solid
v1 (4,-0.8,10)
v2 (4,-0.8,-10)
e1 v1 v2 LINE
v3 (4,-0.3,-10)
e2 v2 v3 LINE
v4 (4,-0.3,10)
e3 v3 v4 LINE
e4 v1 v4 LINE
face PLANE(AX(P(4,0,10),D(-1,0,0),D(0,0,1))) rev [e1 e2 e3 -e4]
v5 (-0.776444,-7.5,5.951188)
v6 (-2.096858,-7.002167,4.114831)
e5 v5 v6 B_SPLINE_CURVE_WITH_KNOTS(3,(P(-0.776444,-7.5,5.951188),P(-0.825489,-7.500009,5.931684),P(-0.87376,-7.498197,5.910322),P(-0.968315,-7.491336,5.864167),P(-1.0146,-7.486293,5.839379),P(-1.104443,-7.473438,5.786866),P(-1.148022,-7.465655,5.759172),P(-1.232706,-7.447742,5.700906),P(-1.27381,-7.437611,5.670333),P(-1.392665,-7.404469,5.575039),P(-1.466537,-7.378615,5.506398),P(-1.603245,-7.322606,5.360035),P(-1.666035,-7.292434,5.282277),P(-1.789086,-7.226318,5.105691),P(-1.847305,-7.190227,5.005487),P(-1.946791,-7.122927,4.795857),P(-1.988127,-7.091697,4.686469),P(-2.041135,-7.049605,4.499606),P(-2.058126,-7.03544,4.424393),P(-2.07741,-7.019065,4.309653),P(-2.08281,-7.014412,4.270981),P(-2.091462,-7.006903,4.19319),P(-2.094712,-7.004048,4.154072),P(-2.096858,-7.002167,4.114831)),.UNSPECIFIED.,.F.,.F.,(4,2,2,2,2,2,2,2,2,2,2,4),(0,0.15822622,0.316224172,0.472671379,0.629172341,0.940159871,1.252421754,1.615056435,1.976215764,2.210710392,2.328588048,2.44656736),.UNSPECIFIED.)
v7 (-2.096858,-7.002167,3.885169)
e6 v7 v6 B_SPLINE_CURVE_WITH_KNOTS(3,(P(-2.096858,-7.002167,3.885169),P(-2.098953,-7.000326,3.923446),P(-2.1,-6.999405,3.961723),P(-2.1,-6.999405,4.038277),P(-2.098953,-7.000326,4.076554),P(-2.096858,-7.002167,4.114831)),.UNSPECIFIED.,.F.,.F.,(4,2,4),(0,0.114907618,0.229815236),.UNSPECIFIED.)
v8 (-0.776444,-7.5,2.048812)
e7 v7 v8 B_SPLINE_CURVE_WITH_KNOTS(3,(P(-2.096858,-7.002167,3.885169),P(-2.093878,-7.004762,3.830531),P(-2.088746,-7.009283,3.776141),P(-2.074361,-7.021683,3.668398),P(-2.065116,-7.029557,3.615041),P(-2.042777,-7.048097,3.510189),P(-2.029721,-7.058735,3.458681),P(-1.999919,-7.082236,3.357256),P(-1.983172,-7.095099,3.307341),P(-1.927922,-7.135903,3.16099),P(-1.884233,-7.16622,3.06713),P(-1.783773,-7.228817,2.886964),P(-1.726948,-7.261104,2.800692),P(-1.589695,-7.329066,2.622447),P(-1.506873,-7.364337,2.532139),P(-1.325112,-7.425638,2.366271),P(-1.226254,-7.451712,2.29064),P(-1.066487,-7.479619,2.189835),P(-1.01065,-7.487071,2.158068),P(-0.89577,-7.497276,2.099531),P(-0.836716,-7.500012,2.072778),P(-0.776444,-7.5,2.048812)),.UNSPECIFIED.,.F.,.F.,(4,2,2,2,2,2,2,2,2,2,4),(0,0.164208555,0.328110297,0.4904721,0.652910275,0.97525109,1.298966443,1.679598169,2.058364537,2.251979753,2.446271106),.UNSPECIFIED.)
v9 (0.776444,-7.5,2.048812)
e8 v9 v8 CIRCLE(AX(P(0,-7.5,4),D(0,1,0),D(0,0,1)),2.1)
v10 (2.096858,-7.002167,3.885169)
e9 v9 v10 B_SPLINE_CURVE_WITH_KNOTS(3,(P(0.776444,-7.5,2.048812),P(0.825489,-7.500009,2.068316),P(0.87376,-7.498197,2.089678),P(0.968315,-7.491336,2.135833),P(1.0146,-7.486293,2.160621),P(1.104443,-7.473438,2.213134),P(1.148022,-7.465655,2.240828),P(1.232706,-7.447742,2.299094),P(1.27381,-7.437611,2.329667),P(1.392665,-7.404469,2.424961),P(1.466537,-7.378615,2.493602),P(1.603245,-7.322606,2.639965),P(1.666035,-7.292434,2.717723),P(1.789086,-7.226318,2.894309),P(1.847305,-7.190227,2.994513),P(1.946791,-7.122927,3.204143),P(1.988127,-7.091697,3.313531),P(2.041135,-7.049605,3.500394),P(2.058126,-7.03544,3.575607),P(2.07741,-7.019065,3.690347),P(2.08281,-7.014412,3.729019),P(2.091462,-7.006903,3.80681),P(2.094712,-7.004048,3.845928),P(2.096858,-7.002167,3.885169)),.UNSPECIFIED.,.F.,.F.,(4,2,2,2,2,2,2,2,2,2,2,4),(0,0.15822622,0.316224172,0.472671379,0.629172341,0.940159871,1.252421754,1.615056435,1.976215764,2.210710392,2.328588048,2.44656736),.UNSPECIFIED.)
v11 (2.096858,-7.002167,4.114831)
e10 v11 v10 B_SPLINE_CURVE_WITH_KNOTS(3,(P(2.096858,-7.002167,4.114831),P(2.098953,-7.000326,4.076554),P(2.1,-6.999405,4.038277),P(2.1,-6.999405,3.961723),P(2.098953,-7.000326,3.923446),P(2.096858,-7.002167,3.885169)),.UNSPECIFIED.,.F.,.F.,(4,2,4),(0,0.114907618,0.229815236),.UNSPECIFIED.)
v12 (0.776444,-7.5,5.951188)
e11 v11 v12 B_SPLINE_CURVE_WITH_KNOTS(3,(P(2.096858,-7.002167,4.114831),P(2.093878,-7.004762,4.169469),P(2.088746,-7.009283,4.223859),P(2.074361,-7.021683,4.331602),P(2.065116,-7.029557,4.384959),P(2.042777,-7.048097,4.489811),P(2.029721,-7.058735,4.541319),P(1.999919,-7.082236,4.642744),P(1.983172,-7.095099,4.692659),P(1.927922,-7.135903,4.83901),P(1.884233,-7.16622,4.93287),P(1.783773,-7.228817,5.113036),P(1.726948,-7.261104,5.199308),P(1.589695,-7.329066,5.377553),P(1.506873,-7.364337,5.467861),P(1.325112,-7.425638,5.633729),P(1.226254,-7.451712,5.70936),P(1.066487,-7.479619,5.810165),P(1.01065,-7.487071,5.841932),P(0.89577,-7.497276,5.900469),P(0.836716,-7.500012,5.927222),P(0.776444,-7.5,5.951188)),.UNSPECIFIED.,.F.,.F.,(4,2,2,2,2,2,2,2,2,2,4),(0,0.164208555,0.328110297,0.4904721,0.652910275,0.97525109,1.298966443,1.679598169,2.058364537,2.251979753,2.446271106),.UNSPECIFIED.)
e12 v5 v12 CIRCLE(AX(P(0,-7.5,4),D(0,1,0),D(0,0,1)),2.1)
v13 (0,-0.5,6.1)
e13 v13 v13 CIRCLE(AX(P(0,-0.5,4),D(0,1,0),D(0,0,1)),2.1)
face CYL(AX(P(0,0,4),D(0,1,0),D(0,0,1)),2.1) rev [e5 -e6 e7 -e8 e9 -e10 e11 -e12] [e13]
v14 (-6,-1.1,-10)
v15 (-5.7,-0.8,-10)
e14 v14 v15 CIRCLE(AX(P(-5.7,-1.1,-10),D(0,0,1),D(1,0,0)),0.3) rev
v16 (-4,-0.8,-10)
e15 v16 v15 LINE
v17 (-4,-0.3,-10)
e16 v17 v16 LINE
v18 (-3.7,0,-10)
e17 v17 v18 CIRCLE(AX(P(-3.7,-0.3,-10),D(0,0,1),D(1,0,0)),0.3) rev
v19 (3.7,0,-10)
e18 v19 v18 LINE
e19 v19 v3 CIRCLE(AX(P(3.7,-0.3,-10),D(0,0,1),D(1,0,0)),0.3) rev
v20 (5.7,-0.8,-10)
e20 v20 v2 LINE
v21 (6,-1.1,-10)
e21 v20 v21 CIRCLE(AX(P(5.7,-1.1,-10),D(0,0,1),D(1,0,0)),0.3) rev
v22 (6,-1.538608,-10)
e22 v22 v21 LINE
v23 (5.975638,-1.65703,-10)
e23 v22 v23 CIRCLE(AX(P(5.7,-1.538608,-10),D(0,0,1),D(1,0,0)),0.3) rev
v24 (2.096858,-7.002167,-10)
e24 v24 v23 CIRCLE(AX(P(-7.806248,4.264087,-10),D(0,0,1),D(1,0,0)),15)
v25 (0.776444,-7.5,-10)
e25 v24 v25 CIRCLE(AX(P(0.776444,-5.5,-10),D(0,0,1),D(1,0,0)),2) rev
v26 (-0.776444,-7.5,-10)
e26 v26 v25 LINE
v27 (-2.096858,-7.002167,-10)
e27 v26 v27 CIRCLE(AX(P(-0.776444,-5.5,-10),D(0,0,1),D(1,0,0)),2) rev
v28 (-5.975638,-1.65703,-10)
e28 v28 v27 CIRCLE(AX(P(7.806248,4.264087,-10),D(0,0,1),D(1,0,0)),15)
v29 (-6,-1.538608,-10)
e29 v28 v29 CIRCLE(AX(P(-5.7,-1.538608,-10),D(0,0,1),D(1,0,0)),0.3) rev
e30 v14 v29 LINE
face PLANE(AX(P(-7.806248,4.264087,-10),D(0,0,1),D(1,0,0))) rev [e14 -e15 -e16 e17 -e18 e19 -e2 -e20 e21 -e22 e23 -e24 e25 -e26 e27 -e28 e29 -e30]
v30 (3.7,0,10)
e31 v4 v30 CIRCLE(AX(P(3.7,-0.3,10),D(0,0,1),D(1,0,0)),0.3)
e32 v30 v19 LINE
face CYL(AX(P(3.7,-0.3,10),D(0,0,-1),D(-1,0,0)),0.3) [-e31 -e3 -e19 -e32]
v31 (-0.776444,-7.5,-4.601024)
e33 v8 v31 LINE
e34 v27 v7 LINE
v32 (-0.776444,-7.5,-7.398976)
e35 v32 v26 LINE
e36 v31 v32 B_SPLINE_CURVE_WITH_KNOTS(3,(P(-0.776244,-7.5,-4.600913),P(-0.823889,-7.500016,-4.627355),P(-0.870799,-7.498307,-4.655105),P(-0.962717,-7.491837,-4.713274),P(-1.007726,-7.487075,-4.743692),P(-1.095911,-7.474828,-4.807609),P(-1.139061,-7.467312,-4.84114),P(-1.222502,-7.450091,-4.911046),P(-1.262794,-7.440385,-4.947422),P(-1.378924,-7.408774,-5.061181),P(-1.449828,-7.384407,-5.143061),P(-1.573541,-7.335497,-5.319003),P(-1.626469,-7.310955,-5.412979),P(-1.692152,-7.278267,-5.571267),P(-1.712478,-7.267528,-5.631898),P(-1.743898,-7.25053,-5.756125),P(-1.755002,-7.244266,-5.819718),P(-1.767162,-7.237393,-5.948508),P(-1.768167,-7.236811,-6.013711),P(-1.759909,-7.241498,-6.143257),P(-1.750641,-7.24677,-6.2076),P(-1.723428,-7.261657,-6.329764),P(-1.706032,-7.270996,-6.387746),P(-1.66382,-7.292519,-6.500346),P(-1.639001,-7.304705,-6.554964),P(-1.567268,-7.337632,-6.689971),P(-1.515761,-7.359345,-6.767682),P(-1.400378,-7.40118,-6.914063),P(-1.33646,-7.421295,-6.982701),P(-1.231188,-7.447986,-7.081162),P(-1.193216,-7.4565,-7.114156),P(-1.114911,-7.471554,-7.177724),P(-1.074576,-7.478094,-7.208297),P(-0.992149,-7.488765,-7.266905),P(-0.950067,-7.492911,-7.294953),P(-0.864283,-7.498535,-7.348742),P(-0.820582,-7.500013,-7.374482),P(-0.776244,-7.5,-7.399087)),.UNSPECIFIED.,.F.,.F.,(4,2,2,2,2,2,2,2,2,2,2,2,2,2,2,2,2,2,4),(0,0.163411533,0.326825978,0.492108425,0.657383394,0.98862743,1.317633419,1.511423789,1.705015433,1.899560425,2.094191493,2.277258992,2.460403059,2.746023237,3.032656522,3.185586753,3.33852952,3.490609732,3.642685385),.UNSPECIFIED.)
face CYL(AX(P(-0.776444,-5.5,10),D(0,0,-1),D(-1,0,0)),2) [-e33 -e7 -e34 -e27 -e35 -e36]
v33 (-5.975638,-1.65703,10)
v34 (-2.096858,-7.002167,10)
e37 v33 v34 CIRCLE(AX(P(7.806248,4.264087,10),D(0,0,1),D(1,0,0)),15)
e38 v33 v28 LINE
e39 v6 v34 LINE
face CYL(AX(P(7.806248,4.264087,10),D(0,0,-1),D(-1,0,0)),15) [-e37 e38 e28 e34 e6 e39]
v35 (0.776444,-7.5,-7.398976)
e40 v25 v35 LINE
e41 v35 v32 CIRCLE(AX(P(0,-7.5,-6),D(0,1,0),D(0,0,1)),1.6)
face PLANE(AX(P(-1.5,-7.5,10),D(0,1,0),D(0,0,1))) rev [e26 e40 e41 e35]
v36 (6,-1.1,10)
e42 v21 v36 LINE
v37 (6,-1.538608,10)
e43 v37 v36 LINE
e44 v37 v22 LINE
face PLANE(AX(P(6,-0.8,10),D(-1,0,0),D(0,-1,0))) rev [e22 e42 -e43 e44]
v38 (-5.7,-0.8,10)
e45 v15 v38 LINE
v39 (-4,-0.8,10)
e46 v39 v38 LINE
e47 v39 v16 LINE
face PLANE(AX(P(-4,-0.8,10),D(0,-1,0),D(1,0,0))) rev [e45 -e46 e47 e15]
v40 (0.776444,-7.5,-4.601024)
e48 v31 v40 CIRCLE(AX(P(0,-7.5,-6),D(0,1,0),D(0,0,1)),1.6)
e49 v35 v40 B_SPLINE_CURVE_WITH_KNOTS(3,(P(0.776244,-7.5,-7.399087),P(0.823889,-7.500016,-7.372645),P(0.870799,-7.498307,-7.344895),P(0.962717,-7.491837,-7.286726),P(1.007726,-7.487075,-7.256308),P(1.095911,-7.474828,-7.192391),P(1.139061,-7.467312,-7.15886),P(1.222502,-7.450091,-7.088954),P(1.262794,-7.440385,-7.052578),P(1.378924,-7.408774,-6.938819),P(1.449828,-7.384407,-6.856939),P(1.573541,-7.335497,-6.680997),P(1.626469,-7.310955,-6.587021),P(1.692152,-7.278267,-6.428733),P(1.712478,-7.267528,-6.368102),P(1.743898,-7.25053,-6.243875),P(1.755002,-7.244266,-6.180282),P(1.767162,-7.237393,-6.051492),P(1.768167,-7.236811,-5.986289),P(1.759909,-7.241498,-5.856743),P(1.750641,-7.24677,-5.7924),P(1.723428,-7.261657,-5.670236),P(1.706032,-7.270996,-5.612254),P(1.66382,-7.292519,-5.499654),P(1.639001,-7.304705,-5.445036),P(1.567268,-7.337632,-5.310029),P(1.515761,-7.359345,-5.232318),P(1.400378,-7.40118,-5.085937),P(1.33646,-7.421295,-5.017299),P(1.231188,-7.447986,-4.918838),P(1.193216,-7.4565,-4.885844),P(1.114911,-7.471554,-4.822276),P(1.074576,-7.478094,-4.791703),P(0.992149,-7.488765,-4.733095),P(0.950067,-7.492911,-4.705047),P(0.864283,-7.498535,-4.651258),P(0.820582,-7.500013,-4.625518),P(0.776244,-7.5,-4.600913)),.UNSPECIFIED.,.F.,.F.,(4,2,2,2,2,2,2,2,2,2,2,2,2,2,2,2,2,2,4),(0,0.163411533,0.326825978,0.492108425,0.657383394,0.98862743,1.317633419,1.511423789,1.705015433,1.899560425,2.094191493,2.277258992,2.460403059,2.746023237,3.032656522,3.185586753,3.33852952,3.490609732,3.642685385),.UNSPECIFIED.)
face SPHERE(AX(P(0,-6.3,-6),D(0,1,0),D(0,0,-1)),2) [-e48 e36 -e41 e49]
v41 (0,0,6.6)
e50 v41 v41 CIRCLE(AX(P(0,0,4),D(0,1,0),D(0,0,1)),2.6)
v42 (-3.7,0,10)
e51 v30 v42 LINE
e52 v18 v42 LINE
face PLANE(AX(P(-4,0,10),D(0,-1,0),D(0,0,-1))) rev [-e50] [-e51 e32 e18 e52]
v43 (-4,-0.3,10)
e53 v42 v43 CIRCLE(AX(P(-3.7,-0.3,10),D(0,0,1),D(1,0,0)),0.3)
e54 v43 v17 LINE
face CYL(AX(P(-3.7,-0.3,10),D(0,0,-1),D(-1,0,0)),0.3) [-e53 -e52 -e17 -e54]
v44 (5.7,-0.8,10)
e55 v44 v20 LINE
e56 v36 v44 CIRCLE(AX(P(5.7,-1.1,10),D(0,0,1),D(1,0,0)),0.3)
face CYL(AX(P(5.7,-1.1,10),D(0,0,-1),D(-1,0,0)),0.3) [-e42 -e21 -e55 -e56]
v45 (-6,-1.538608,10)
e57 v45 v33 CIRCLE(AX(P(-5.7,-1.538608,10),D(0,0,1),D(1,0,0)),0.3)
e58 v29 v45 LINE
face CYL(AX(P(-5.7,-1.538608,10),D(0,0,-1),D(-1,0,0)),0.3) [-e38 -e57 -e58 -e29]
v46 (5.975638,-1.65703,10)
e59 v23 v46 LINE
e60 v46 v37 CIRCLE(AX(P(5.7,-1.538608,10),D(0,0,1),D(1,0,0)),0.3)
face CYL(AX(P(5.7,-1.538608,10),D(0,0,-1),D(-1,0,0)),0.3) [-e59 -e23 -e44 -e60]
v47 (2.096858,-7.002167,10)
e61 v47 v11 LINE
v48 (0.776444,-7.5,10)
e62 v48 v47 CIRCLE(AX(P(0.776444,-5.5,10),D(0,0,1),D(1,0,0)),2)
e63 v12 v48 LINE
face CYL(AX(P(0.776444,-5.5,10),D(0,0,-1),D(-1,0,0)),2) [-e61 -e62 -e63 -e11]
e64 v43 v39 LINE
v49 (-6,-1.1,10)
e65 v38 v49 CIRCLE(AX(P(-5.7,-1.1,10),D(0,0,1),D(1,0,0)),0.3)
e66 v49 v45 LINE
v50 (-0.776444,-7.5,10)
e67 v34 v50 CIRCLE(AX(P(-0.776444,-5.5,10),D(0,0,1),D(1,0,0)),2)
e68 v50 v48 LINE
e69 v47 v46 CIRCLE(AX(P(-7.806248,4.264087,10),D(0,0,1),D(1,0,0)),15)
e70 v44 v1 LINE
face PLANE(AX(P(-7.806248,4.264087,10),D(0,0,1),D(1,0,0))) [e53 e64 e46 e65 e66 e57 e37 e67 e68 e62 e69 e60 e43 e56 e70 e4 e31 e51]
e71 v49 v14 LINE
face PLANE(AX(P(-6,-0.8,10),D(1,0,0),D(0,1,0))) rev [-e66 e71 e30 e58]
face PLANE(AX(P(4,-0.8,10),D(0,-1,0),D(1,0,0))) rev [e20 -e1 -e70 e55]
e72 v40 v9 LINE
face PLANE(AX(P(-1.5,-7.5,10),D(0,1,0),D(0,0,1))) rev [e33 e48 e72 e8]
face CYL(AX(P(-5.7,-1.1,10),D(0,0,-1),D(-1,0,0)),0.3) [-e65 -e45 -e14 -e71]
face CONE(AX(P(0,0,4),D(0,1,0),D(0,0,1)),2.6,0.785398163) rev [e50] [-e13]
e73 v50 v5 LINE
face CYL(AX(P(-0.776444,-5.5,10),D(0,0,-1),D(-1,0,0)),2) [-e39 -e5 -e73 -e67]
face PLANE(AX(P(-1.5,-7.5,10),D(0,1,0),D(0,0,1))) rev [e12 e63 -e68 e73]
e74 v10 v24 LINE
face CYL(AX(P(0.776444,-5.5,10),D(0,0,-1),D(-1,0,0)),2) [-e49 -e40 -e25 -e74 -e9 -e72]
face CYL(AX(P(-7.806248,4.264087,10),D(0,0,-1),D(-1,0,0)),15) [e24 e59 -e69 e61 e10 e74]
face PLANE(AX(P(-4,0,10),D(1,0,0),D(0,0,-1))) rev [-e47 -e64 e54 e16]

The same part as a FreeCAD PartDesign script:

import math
import FreeCAD as App
import Part
import Sketcher
from FreeCAD import Vector
Q = App.Units.Quantity


def edges_at(feature, points):
    """Names of the edges that pass closest to the given points."""
    edges = feature.Shape.Edges
    near = lambda p: min(range(len(edges)), key=lambda i: edges[i].distToShape(Part.Vertex(*p))[0])
    return sorted({f"Edge{near(p) + 1}" for p in points})

doc = App.newDocument("Part")
body = doc.addObject("PartDesign::Body", "Body")

sketch1 = body.newObject("Sketcher::SketchObject", "Sketch")
sketch1.AttachmentSupport = (doc.getObject("XY_Plane"), [""])
sketch1.MapMode = "FlatFace"
sketch1.addGeometry(Part.LineSegment(Vector(4, 0, 0), Vector(-4, 0, 0)), False)
sketch1.addGeometry(Part.LineSegment(Vector(-4, 0, 0), Vector(-4, -0.8, 0)), False)
sketch1.addGeometry(Part.LineSegment(Vector(-4, -0.8, 0), Vector(-6, -0.8, 0)), False)
sketch1.addGeometry(Part.LineSegment(Vector(-6, -0.8, 0), Vector(-6, -1.6, 0)), False)
sketch1.addGeometry(Part.ArcOfCircle(Part.Circle(Vector(7.8, 4.3, 0), Vector(0, 0, 1), 15), math.radians(-157), math.radians(-128)), False)
sketch1.addGeometry(Part.LineSegment(Vector(-1.5, -7.5, 0), Vector(1.5, -7.5, 0)), False)
sketch1.addGeometry(Part.ArcOfCircle(Part.Circle(Vector(-7.8, 4.3, 0), Vector(0, 0, 1), 15), math.radians(-52), math.radians(-23)), False)
sketch1.addGeometry(Part.LineSegment(Vector(6, -1.6, 0), Vector(6, -0.8, 0)), False)
sketch1.addGeometry(Part.LineSegment(Vector(6, -0.8, 0), Vector(4, -0.8, 0)), False)
sketch1.addGeometry(Part.LineSegment(Vector(4, -0.8, 0), Vector(4, 0, 0)), False)
sketch1.addConstraint(Sketcher.Constraint("Coincident", 0, 2, 1, 1))
sketch1.addConstraint(Sketcher.Constraint("Coincident", 1, 2, 2, 1))
sketch1.addConstraint(Sketcher.Constraint("Coincident", 2, 2, 3, 1))
sketch1.addConstraint(Sketcher.Constraint("Coincident", 3, 2, 4, 1))
sketch1.addConstraint(Sketcher.Constraint("Coincident", 4, 2, 5, 1))
sketch1.addConstraint(Sketcher.Constraint("Coincident", 5, 2, 6, 1))
sketch1.addConstraint(Sketcher.Constraint("Coincident", 6, 2, 7, 1))
sketch1.addConstraint(Sketcher.Constraint("Coincident", 7, 2, 8, 1))
sketch1.addConstraint(Sketcher.Constraint("Coincident", 8, 2, 9, 1))
sketch1.addConstraint(Sketcher.Constraint("Coincident", 9, 2, 0, 1))
sketch1.addConstraint(Sketcher.Constraint("Horizontal", 0))
sketch1.addConstraint(Sketcher.Constraint("Vertical", 1))
sketch1.addConstraint(Sketcher.Constraint("Horizontal", 2))
sketch1.addConstraint(Sketcher.Constraint("Vertical", 3))
sketch1.addConstraint(Sketcher.Constraint("Horizontal", 5))
sketch1.addConstraint(Sketcher.Constraint("Vertical", 7))
sketch1.addConstraint(Sketcher.Constraint("Horizontal", 8))
sketch1.addConstraint(Sketcher.Constraint("Vertical", 9))
sketch1.addConstraint(Sketcher.Constraint("Equal", 4, 6))
sketch1.addConstraint(Sketcher.Constraint("Symmetric", 0, 2, 9, 2, -1, 1))
sketch1.addConstraint(Sketcher.Constraint("Symmetric", 4, 3, 6, 3, -2))
sketch1.addConstraint(Sketcher.Constraint("Symmetric", 2, 2, 7, 2, -2))
sketch1.addConstraint(Sketcher.Constraint("Equal", 1, 3))
sketch1.addConstraint(Sketcher.Constraint("Radius", 4, Q("15 mm")))
sketch1.addConstraint(Sketcher.Constraint("DistanceX", 0, 2, 0, 1, Q("8 mm")))
sketch1.addConstraint(Sketcher.Constraint("DistanceX", 2, 2, 2, 1, Q("2 mm")))
sketch1.addConstraint(Sketcher.Constraint("DistanceX", 5, 1, 5, 2, Q("3 mm")))
sketch1.addConstraint(Sketcher.Constraint("DistanceY", 1, 2, 1, 1, Q("0.8 mm")))
sketch1.addConstraint(Sketcher.Constraint("DistanceY", 4, 2, -1, 1, Q("7.5 mm")))
pad1 = body.newObject("PartDesign::Pad", "Pad")
pad1.Profile = sketch1
pad1.Length = 20
pad1.Midplane = True
doc.recompute()

fillet = body.newObject("PartDesign::Fillet", "Fillet")
fillet.Base = (pad1, edges_at(pad1, [
    (6, -0.8, 0),
    (6, -1.6, 0),
    (-6, -1.6, 0),
    (-6, -0.8, 0),
    (-4, 0, 0),
    (4, 0, 0),
]))
fillet.Radius = 0.3
doc.recompute()

fillet2 = body.newObject("PartDesign::Fillet", "Fillet001")
fillet2.Base = (fillet, edges_at(fillet, [(1.5, -7.5, 0), (-1.5, -7.5, 0)]))
fillet2.Radius = 2

sketch2 = body.newObject("Sketcher::SketchObject", "Sketch001")
sketch2.AttachmentSupport = (doc.getObject("XZ_Plane"), [""])
sketch2.MapMode = "FlatFace"
sketch2.addGeometry(Part.Circle(Vector(0, 4, 0), Vector(0, 0, 1), 2.1), False)
sketch2.addConstraint(Sketcher.Constraint("PointOnObject", 0, 3, -2))
sketch2.addConstraint(Sketcher.Constraint("Diameter", 0, Q("4.2 mm")))
sketch2.addConstraint(Sketcher.Constraint("DistanceY", -1, 1, 0, 3, Q("4 mm")))
doc.recompute()
hole = body.newObject("PartDesign::Hole", "Hole")
hole.Profile = sketch2
hole.ThreadType = "None"
hole.Diameter = 4.2
hole.DepthType = "ThroughAll"
hole.HoleCutType = "Countersink"
hole.HoleCutDiameter = 5.2
hole.HoleCutCountersinkAngle = 90
hole.Reversed = True

sketch3 = body.newObject("Sketcher::SketchObject", "Sketch002")
sketch3.AttachmentSupport = (doc.getObject("YZ_Plane"), [""])
sketch3.MapMode = "FlatFace"
sketch3.addGeometry(Part.LineSegment(Vector(-8.3, -6, 0), Vector(-4.3, -6, 0)), False)
sketch3.addGeometry(Part.ArcOfCircle(Part.Circle(Vector(-6.3, -6, 0), Vector(0, 0, 1), 2), math.radians(0), math.radians(180)), False)
sketch3.addGeometry(Part.LineSegment(Vector(-4.3, -6, 0), Vector(-8.3, -6, 0)), True)
sketch3.addConstraint(Sketcher.Constraint("Coincident", 0, 1, 1, 2))
sketch3.addConstraint(Sketcher.Constraint("Coincident", 1, 1, 0, 2))
sketch3.addConstraint(Sketcher.Constraint("Horizontal", 0))
sketch3.addConstraint(Sketcher.Constraint("Horizontal", 2))
sketch3.addConstraint(Sketcher.Constraint("Coincident", 2, 1, 1, 1))
sketch3.addConstraint(Sketcher.Constraint("Horizontal", 1, 3, 0, 1))
sketch3.addConstraint(Sketcher.Constraint("Equal", 0, 2))
sketch3.addConstraint(Sketcher.Constraint("Radius", 1, Q("2 mm")))
sketch3.addConstraint(Sketcher.Constraint("DistanceY", 1, 3, -1, 1, Q("6 mm")))
sketch3.addConstraint(Sketcher.Constraint("DistanceX", 1, 3, -1, 1, Q("6.3 mm")))
revolution = body.newObject("PartDesign::Revolution", "Revolution")
revolution.Profile = sketch3
revolution.ReferenceAxis = (sketch3, ["Axis0"])
revolution.Angle = 360

doc.recompute()
